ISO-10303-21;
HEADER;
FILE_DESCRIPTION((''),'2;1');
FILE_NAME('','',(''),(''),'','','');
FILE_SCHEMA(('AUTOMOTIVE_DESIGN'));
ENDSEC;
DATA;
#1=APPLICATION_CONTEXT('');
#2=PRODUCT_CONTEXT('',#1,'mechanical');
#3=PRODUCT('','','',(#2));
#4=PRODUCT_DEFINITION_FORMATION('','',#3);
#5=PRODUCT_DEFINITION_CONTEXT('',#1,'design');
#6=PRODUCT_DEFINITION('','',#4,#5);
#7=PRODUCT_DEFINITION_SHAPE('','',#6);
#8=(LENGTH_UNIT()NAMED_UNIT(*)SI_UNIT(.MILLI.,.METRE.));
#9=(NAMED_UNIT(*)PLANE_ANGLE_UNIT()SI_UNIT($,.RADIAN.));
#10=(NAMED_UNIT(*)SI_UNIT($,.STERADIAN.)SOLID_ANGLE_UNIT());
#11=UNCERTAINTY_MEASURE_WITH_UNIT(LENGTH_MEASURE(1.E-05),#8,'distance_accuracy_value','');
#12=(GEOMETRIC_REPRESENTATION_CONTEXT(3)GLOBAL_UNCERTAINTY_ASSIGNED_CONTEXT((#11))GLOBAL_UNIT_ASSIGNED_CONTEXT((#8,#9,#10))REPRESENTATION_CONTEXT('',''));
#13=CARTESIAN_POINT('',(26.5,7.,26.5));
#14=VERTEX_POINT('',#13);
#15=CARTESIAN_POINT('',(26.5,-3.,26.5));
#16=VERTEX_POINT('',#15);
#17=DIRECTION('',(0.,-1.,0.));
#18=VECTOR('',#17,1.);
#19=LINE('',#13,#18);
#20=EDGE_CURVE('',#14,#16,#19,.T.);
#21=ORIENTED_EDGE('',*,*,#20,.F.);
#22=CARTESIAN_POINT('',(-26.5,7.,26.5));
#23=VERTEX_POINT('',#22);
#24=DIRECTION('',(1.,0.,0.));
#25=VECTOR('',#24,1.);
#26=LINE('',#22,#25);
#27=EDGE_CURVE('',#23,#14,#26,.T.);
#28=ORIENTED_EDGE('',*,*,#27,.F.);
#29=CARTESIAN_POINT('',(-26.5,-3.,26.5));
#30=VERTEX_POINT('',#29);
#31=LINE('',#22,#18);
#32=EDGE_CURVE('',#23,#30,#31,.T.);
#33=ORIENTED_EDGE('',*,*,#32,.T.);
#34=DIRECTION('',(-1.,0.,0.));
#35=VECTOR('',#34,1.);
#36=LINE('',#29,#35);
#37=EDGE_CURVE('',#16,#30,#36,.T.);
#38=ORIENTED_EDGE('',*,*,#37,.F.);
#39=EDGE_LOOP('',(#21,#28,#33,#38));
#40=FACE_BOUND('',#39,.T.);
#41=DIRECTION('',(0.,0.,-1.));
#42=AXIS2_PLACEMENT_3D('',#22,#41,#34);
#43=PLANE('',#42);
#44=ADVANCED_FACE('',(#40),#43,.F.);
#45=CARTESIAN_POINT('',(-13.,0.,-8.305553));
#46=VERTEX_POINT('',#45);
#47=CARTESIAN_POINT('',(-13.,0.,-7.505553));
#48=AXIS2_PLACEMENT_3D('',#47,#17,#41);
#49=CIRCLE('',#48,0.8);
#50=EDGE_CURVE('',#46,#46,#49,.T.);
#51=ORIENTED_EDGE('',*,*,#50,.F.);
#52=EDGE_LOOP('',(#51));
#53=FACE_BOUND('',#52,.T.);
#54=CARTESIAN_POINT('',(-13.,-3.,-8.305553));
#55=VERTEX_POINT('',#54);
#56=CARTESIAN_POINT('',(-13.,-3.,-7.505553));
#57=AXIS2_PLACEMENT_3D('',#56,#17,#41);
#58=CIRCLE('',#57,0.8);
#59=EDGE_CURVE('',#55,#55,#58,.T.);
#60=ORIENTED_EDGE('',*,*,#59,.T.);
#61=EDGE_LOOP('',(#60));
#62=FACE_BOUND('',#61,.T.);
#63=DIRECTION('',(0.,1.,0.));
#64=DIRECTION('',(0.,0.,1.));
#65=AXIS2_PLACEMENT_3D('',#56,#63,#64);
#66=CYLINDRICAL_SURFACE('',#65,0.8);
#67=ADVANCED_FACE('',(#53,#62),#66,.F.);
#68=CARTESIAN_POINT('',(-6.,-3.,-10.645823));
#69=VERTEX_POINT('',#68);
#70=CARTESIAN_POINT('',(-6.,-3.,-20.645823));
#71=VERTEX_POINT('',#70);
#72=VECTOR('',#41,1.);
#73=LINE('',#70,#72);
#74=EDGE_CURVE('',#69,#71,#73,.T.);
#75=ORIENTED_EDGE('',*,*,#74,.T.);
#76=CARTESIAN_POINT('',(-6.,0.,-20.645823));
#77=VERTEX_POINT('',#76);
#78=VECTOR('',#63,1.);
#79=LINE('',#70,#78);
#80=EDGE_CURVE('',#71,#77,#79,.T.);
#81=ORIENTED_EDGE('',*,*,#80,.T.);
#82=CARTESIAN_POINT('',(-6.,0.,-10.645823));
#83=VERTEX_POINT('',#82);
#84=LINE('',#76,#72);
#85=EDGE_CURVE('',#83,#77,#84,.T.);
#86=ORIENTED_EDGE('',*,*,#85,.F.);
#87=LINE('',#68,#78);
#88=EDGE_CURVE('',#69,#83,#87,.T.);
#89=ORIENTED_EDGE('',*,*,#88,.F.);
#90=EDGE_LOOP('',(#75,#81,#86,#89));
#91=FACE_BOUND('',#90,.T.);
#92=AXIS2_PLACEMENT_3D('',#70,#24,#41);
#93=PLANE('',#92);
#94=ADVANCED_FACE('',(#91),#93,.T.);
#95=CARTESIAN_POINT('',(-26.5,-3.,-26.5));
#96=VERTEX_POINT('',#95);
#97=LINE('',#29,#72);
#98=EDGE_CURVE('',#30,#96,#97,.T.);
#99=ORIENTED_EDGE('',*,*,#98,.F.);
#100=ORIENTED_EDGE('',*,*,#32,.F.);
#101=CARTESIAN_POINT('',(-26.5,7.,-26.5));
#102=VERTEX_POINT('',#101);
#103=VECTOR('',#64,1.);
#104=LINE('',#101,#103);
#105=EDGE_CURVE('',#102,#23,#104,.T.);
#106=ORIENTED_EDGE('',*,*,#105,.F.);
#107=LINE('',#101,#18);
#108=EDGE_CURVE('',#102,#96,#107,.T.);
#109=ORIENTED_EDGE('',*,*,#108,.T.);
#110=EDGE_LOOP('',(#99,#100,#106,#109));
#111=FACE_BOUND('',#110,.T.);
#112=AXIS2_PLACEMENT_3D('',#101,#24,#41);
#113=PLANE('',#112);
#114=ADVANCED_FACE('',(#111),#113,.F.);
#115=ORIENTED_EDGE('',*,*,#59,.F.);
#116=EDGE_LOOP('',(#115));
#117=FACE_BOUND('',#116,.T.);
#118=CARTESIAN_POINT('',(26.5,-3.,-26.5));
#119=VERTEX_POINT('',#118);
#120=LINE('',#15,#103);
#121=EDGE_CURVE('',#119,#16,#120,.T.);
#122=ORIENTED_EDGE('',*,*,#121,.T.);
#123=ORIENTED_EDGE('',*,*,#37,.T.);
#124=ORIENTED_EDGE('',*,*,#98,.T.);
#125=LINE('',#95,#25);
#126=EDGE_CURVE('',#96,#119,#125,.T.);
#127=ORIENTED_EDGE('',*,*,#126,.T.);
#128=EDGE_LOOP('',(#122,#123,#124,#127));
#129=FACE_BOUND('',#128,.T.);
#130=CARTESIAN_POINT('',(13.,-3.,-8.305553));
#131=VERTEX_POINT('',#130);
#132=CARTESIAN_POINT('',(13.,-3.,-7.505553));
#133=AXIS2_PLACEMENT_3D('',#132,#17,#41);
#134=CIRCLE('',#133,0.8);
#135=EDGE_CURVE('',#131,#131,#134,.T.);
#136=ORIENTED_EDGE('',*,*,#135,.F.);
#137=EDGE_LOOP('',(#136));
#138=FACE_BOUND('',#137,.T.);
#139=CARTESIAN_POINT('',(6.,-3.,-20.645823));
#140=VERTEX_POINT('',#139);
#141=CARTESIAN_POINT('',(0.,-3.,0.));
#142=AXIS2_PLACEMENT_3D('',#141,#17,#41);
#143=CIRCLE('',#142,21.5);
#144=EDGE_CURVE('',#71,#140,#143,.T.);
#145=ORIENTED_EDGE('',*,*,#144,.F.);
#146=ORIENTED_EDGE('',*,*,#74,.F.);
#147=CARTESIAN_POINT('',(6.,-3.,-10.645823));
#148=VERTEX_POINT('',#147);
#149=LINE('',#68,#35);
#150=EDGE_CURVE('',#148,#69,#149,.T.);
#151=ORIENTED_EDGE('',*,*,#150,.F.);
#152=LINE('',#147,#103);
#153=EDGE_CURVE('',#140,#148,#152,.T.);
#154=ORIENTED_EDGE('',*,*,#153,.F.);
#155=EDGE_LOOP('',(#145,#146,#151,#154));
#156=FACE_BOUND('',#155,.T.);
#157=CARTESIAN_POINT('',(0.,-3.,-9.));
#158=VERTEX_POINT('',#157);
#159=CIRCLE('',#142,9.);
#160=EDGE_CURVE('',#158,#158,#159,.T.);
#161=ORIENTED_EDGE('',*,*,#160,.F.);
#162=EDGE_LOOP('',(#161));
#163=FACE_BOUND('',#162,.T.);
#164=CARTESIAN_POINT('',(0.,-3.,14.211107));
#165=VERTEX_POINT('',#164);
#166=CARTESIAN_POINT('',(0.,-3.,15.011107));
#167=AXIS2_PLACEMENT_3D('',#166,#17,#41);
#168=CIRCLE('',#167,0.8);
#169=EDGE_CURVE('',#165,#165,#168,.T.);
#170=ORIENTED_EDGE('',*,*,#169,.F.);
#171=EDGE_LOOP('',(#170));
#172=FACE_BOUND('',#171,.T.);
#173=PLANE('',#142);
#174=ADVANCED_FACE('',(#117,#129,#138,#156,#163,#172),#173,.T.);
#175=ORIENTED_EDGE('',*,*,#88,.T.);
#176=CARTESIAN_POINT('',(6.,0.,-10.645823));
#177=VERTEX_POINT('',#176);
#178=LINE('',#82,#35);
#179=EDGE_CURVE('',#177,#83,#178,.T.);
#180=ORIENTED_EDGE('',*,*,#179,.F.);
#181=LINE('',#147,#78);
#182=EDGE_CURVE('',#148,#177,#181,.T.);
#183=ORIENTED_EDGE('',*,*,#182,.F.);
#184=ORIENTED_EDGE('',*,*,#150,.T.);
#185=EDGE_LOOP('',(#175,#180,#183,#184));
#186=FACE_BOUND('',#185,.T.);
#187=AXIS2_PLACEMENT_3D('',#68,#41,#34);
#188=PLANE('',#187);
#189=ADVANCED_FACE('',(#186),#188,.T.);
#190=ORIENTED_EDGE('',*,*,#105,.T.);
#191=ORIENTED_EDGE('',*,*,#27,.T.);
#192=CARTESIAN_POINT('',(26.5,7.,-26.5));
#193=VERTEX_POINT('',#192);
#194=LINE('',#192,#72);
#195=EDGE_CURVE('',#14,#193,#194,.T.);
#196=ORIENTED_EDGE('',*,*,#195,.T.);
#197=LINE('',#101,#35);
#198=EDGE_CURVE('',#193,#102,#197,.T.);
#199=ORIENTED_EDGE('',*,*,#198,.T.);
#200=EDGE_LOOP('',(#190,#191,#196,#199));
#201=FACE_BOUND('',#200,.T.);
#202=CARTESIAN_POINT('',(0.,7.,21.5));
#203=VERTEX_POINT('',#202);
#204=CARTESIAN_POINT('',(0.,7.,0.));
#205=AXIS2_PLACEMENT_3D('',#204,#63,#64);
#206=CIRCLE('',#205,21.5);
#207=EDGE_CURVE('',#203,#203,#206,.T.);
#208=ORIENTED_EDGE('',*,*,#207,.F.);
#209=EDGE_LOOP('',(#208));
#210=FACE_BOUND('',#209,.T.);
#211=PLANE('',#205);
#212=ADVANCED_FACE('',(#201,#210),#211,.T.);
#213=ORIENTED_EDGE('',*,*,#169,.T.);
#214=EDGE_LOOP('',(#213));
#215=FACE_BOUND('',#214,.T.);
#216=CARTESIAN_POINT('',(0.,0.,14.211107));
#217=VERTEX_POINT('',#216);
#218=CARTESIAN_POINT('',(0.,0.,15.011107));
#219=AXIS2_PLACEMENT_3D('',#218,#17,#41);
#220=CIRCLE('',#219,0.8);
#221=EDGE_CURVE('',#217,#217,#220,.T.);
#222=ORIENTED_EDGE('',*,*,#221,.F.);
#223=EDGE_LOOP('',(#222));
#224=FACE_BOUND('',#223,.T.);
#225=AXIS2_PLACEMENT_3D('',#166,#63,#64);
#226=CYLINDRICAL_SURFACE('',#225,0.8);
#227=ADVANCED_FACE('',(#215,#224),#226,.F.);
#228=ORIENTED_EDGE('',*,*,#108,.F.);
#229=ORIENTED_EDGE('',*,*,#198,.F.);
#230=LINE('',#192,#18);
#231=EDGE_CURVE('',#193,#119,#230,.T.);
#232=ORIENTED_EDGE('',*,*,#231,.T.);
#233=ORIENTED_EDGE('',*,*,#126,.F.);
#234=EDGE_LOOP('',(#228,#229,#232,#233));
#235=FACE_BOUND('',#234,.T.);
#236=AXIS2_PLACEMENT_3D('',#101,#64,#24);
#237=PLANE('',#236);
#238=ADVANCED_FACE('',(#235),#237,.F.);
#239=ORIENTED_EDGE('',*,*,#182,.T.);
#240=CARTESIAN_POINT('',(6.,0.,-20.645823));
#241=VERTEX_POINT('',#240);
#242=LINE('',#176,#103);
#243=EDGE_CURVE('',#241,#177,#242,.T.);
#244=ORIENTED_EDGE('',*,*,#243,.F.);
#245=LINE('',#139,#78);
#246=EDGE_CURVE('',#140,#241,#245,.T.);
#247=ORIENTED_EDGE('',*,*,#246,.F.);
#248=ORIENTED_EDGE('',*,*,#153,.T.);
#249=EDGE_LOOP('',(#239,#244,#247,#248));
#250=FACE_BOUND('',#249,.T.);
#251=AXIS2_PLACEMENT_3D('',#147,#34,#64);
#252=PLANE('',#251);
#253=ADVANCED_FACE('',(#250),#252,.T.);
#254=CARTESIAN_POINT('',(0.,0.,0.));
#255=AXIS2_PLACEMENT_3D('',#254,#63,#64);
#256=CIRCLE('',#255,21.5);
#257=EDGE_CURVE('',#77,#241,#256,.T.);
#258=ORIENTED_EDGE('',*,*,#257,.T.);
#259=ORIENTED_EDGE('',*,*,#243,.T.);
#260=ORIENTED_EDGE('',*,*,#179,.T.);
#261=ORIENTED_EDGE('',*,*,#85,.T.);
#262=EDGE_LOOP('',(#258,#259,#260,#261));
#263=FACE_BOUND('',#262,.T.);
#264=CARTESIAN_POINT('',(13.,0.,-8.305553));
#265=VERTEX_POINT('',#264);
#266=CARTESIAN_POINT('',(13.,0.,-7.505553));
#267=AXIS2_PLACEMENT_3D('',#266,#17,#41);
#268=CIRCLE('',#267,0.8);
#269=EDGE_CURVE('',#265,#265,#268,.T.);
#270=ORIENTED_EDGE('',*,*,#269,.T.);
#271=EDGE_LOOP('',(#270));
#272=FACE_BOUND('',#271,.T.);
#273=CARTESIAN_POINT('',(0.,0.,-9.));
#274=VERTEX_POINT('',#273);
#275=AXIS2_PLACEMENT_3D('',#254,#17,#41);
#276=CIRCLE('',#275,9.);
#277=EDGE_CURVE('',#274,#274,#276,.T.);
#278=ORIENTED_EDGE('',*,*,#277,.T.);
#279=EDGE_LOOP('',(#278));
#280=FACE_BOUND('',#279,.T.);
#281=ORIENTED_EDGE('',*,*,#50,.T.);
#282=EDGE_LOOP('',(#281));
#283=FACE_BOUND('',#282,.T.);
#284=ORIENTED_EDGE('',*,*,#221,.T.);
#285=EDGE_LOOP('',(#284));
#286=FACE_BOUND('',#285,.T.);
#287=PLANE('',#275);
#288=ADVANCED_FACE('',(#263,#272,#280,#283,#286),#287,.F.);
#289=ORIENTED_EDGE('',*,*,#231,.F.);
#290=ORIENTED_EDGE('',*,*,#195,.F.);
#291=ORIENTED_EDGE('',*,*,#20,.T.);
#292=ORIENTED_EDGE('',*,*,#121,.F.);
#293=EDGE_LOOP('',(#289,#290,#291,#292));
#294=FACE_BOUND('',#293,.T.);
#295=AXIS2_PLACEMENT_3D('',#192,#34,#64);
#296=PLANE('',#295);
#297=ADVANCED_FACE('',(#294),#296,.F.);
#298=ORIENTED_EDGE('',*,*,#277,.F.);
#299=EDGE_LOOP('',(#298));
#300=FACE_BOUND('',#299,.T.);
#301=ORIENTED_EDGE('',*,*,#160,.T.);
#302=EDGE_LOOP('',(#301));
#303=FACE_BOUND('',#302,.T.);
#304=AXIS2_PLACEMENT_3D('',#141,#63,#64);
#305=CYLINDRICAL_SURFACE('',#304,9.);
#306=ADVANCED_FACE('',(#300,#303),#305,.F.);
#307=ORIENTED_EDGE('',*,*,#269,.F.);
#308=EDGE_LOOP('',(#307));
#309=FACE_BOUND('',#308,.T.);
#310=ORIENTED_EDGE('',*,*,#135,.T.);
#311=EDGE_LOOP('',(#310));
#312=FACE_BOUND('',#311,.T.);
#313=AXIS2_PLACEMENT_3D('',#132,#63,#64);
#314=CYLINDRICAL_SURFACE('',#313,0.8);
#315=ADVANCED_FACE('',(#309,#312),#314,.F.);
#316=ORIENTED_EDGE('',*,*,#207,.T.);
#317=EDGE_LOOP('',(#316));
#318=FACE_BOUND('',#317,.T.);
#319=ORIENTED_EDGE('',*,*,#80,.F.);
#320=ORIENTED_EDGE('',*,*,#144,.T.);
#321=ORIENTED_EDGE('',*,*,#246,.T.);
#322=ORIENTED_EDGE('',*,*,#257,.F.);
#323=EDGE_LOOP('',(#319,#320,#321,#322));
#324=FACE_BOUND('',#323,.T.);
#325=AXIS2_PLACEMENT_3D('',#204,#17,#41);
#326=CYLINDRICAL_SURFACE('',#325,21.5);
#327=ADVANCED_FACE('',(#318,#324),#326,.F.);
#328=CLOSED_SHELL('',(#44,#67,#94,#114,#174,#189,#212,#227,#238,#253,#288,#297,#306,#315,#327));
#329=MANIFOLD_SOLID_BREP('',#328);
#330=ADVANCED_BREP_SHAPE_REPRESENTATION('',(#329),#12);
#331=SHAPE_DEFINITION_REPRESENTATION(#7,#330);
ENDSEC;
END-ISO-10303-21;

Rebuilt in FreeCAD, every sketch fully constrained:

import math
import FreeCAD as App
import Part
import Sketcher
from FreeCAD import Vector
Q = App.Units.Quantity


def add_polygon(sketch, points):
    """Adds a closed chain of lines whose ends are joined by coincident constraints."""
    first, n = sketch.GeometryCount, len(points)
    for a, b in zip(points, points[1:] + points[:1]):
        sketch.addGeometry(Part.LineSegment(App.Vector(*a, 0), App.Vector(*b, 0)), False)
    for i in range(n):
        sketch.addConstraint(Sketcher.Constraint("Coincident", first + i, 2, first + (i + 1) % n, 1))

doc = App.newDocument("Part")
params = doc.addObject("Spreadsheet::Sheet", "Params")
for row, (alias, value) in enumerate([
    ("sketch1_diameter", "43 mm"),
    ("sketch1_width", "53 mm"),
    ("pad1_length", "7 mm"),
    ("sketch2_diameter", "18 mm"),
    ("sketch2_diameter2", "1.6 mm"),
    ("sketch2_radius", "21.5 mm"),
    ("sketch2_width", "53 mm"),
    ("sketch2_width2", "12 mm"),
    ("pad2_length", "3 mm"),
], start=1):
    params.set(f"A{row}", alias)
    params.set(f"B{row}", "=" + value)
    params.setAlias(f"B{row}", alias)

body = doc.addObject("PartDesign::Body", "Body")

# Sketch on XZ plane
sketch1 = doc.addObject("Sketcher::SketchObject", "Sketch")
body.addObject(sketch1)
sketch1.AttachmentSupport = (doc.XZ_Plane, [""])
sketch1.MapMode = "FlatFace"
add_polygon(sketch1, [(-26.5, -26.5), (-26.5, 26.5), (26.5, 26.5), (26.5, -26.5)])  # lines 0-3
sketch1.addGeometry(Part.Circle(Vector(0, 0, 0), Vector(0, 0, 1), 21.5), False)  # 4
sketch1.addConstraint(Sketcher.Constraint("Vertical", 0))
sketch1.addConstraint(Sketcher.Constraint("Horizontal", 1))
sketch1.addConstraint(Sketcher.Constraint("Vertical", 2))
sketch1.addConstraint(Sketcher.Constraint("Horizontal", 3))
sketch1.addConstraint(Sketcher.Constraint("Coincident", 4, 3, -1, 1))
sketch1.addConstraint(Sketcher.Constraint("Symmetric", 0, 2, 2, 2, -1, 1))
sketch1.addConstraint(Sketcher.Constraint("Equal", 3, 0))
sketch1.addConstraint(Sketcher.Constraint("Diameter", 4, Q("43 mm")))
sketch1.addConstraint(Sketcher.Constraint("DistanceX", 1, 1, 1, 2, Q("53 mm")))
sketch1.setExpression("Constraints[11]", "Params.sketch1_diameter")
sketch1.setExpression("Constraints[12]", "Params.sketch1_width")
pad1 = doc.addObject("PartDesign::Pad", "Pad")
body.addObject(pad1)
pad1.Profile = sketch1
pad1.setExpression("Length", "Params.pad1_length")
pad1.Reversed = True

# Sketch on XZ plane
sketch2 = doc.addObject("Sketcher::SketchObject", "Sketch001")
body.addObject(sketch2)
sketch2.AttachmentSupport = (doc.XZ_Plane, [""])
sketch2.MapMode = "FlatFace"
sketch2.AttachmentOffset = App.Placement(Vector(0, 0, 3), App.Rotation())
add_polygon(sketch2, [(-26.5, 26.5), (-26.5, -26.5), (26.5, -26.5), (26.5, 26.5)])  # lines 0-3
sketch2.addGeometry(Part.Circle(Vector(-13, -7.505553, 0), Vector(0, 0, 1), 0.8), False)  # 4
sketch2.addGeometry(Part.ArcOfCircle(Part.Circle(Vector(0, 0, 0), Vector(0, 0, 1), 21.5), math.radians(-106.204693), math.radians(-73.795307)), False)  # 5
sketch2.addGeometry(Part.LineSegment(Vector(-6, -20.645823, 0), Vector(-6, -10.645823, 0)), False)  # 6
sketch2.addGeometry(Part.LineSegment(Vector(-6, -10.645823, 0), Vector(6, -10.645823, 0)), False)  # 7
sketch2.addGeometry(Part.LineSegment(Vector(6, -10.645823, 0), Vector(6, -20.645823, 0)), False)  # 8
sketch2.addGeometry(Part.Circle(Vector(13, -7.505553, 0), Vector(0, 0, 1), 0.8), False)  # 9
sketch2.addGeometry(Part.Circle(Vector(0, 0, 0), Vector(0, 0, 1), 9), False)  # 10
sketch2.addGeometry(Part.Circle(Vector(0, 15.011107, 0), Vector(0, 0, 1), 0.8), False)  # 11
sketch2.addConstraint(Sketcher.Constraint("Coincident", 5, 1, 6, 1))
sketch2.addConstraint(Sketcher.Constraint("Coincident", 6, 2, 7, 1))
sketch2.addConstraint(Sketcher.Constraint("Coincident", 7, 2, 8, 1))
sketch2.addConstraint(Sketcher.Constraint("Coincident", 8, 2, 5, 2))
sketch2.addConstraint(Sketcher.Constraint("Vertical", 0))
sketch2.addConstraint(Sketcher.Constraint("Horizontal", 1))
sketch2.addConstraint(Sketcher.Constraint("Vertical", 2))
sketch2.addConstraint(Sketcher.Constraint("Horizontal", 3))
sketch2.addConstraint(Sketcher.Constraint("Vertical", 6))
sketch2.addConstraint(Sketcher.Constraint("Horizontal", 7))
sketch2.addConstraint(Sketcher.Constraint("Vertical", 8))
sketch2.addConstraint(Sketcher.Constraint("Coincident", 5, 3, -1, 1))
sketch2.addConstraint(Sketcher.Constraint("Coincident", 10, 3, -1, 1))
sketch2.addConstraint(Sketcher.Constraint("Equal", 4, 9))
sketch2.addConstraint(Sketcher.Constraint("Equal", 9, 11))
sketch2.addConstraint(Sketcher.Constraint("Symmetric", 0, 2, 2, 2, -1, 1))
sketch2.addConstraint(Sketcher.Constraint("Symmetric", 4, 3, 9, 3, -2))
sketch2.addConstraint(Sketcher.Constraint("PointOnObject", 11, 3, -2))
sketch2.addConstraint(Sketcher.Constraint("Horizontal", 5, 1, 8, 2))
sketch2.addConstraint(Sketcher.Constraint("Equal", 3, 0))
sketch2.addConstraint(Sketcher.Constraint("Diameter", 10, Q("18 mm")))
sketch2.addConstraint(Sketcher.Constraint("Diameter", 4, Q("1.6 mm")))
sketch2.addConstraint(Sketcher.Constraint("Radius", 5, Q("21.5 mm")))
sketch2.addConstraint(Sketcher.Constraint("DistanceX", 1, 1, 1, 2, Q("53 mm")))
sketch2.addConstraint(Sketcher.Constraint("DistanceX", 7, 1, 7, 2, Q("12 mm")))
sketch2.addConstraint(Sketcher.Constraint("DistanceY", 6, 1, 6, 2, Q("10 mm")))
sketch2.addConstraint(Sketcher.Constraint("DistanceX", 4, 3, -1, 1, Q("13 mm")))
sketch2.addConstraint(Sketcher.Constraint("DistanceY", 4, 3, 11, 3, Q("22.51666 mm")))
sketch2.addConstraint(Sketcher.Constraint("DistanceY", 5, 1, 4, 3, Q("13.140269 mm")))
sketch2.setExpression("Constraints[24]", "Params.sketch2_diameter")
sketch2.setExpression("Constraints[25]", "Params.sketch2_diameter2")
sketch2.setExpression("Constraints[26]", "Params.sketch2_radius")
sketch2.setExpression("Constraints[27]", "Params.sketch2_width")
sketch2.setExpression("Constraints[28]", "Params.sketch2_width2")
pad2 = doc.addObject("PartDesign::Pad", "Pad001")
body.addObject(pad2)
pad2.Profile = sketch2
pad2.setExpression("Length", "Params.pad2_length")
pad2.Reversed = True

doc.recompute()
